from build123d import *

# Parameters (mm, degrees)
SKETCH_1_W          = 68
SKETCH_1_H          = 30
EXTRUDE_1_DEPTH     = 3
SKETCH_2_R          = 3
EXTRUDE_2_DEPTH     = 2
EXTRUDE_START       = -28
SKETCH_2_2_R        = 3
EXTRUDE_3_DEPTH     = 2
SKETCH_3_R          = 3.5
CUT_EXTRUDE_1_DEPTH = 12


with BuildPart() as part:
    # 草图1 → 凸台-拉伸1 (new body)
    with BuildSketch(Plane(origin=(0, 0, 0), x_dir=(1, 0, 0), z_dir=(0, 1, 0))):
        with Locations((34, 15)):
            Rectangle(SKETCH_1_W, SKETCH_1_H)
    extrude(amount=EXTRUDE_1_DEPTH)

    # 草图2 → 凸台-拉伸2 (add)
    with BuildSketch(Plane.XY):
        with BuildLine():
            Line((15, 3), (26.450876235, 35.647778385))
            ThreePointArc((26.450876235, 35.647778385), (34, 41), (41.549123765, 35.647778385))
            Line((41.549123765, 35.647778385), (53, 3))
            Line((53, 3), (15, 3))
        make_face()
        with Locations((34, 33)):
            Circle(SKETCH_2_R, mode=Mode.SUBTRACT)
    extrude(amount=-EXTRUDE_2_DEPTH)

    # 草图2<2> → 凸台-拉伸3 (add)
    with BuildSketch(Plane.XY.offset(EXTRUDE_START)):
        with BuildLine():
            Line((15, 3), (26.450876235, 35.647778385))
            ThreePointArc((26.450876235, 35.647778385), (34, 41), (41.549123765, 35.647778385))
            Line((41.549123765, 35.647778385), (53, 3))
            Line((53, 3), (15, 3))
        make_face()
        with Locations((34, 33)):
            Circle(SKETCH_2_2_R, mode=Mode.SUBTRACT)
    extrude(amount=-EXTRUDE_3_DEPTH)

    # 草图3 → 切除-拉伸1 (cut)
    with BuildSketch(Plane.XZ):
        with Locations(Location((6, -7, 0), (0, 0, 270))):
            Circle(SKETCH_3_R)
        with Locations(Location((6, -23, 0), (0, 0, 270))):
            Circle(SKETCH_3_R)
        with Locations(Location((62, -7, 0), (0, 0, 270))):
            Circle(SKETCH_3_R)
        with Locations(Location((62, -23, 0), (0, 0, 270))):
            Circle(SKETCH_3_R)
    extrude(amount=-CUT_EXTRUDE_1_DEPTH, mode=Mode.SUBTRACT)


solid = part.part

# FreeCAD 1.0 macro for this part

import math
import FreeCAD as App
import Part
import Sketcher
from FreeCAD import Vector


def add_polygon(sketch, points):
    """Adds a closed chain of lines whose ends are joined by coincident constraints."""
    first, n = sketch.GeometryCount, len(points)
    for a, b in zip(points, points[1:] + points[:1]):
        sketch.addGeometry(Part.LineSegment(App.Vector(*a, 0), App.Vector(*b, 0)), False)
    for i in range(n):
        sketch.addConstraint(Sketcher.Constraint("Coincident", first + i, 2, first + (i + 1) % n, 1))

doc = App.newDocument("Part")
body = doc.addObject("PartDesign::Body", "Body")

# Sketch on XZ plane
sketch1 = doc.addObject("Sketcher::SketchObject", "Sketch")
body.addObject(sketch1)
sketch1.AttachmentSupport = (doc.XZ_Plane, [""])
sketch1.MapMode = "FlatFace"
add_polygon(sketch1, [(0, -30), (0, 0), (68, 0), (68, -30)])  # lines 0-3
sketch1.addConstraint(Sketcher.Constraint("Vertical", 0))
sketch1.addConstraint(Sketcher.Constraint("Horizontal", 1))
sketch1.addConstraint(Sketcher.Constraint("Vertical", 2))
sketch1.addConstraint(Sketcher.Constraint("Horizontal", 3))
sketch1.addConstraint(Sketcher.Constraint("Coincident", 0, 2, -1, 1))
sketch1.addConstraint(Sketcher.Constraint("DistanceX", 1, 1, 1, 2, 68.0))
sketch1.addConstraint(Sketcher.Constraint("DistanceY", 0, 1, 0, 2, 30.0))
pad1 = doc.addObject("PartDesign::Pad", "Pad")
body.addObject(pad1)
pad1.Profile = sketch1
pad1.Length = 3
pad1.Reversed = True

# Sketch on XY plane
sketch2 = doc.addObject("Sketcher::SketchObject", "Sketch001")
body.addObject(sketch2)
sketch2.AttachmentSupport = (doc.XY_Plane, [""])
sketch2.MapMode = "FlatFace"
sketch2.addGeometry(Part.LineSegment(Vector(26.450876, 35.647778, 0), Vector(15, 3, 0)), False)
sketch2.addGeometry(Part.LineSegment(Vector(15, 3, 0), Vector(53, 3, 0)), False)
sketch2.addGeometry(Part.LineSegment(Vector(53, 3, 0), Vector(41.549124, 35.647778, 0)), False)
sketch2.addGeometry(Part.ArcOfCircle(Part.Circle(Vector(34, 33, 0), Vector(0, 0, 1), 8), math.radians(19.327801), math.radians(160.672199)), False)
sketch2.addGeometry(Part.Circle(Vector(34, 33, 0), Vector(0, 0, 1), 3), False)
sketch2.addConstraint(Sketcher.Constraint("Coincident", 0, 2, 1, 1))
sketch2.addConstraint(Sketcher.Constraint("Coincident", 1, 2, 2, 1))
sketch2.addConstraint(Sketcher.Constraint("Tangent", 2, 2, 3, 1))
sketch2.addConstraint(Sketcher.Constraint("Tangent", 3, 2, 0, 1))
sketch2.addConstraint(Sketcher.Constraint("Horizontal", 1))
sketch2.addConstraint(Sketcher.Constraint("Coincident", 4, 3, 3, 3))
sketch2.addConstraint(Sketcher.Constraint("Horizontal", 2, 2, 3, 2))
sketch2.addConstraint(Sketcher.Constraint("Diameter", 4, 6.0))
sketch2.addConstraint(Sketcher.Constraint("Radius", 3, 8.0))
sketch2.addConstraint(Sketcher.Constraint("DistanceX", 1, 1, 1, 2, 38.0))
sketch2.addConstraint(Sketcher.Constraint("DistanceX", -1, 1, 3, 3, 34.0))
sketch2.addConstraint(Sketcher.Constraint("DistanceY", -1, 1, 3, 3, 33.0))
sketch2.addConstraint(Sketcher.Constraint("DistanceY", -1, 1, 0, 2, 3.0))
pad2 = doc.addObject("PartDesign::Pad", "Pad001")
body.addObject(pad2)
pad2.Profile = sketch2
pad2.Length = 2
pad2.Reversed = True

# Sketch on XY plane
sketch3 = doc.addObject("Sketcher::SketchObject", "Sketch002")
body.addObject(sketch3)
sketch3.AttachmentSupport = (doc.XY_Plane, [""])
sketch3.MapMode = "FlatFace"
sketch3.AttachmentOffset = App.Placement(Vector(0, 0, -28), App.Rotation())
sketch3.addGeometry(Part.LineSegment(Vector(26.450876, 35.647778, 0), Vector(15, 3, 0)), False)
sketch3.addGeometry(Part.LineSegment(Vector(15, 3, 0), Vector(53, 3, 0)), False)
sketch3.addGeometry(Part.LineSegment(Vector(53, 3, 0), Vector(41.549124, 35.647778, 0)), False)
sketch3.addGeometry(Part.ArcOfCircle(Part.Circle(Vector(34, 33, 0), Vector(0, 0, 1), 8), math.radians(19.327801), math.radians(160.672199)), False)
sketch3.addGeometry(Part.Circle(Vector(34, 33, 0), Vector(0, 0, 1), 3), False)
sketch3.addConstraint(Sketcher.Constraint("Coincident", 0, 2, 1, 1))
sketch3.addConstraint(Sketcher.Constraint("Coincident", 1, 2, 2, 1))
sketch3.addConstraint(Sketcher.Constraint("Tangent", 2, 2, 3, 1))
sketch3.addConstraint(Sketcher.Constraint("Tangent", 3, 2, 0, 1))
sketch3.addConstraint(Sketcher.Constraint("Horizontal", 1))
sketch3.addConstraint(Sketcher.Constraint("Coincident", 4, 3, 3, 3))
sketch3.addConstraint(Sketcher.Constraint("Horizontal", 2, 2, 3, 2))
sketch3.addConstraint(Sketcher.Constraint("Diameter", 4, 6.0))
sketch3.addConstraint(Sketcher.Constraint("Radius", 3, 8.0))
sketch3.addConstraint(Sketcher.Constraint("DistanceX", 1, 1, 1, 2, 38.0))
sketch3.addConstraint(Sketcher.Constraint("DistanceX", -1, 1, 3, 3, 34.0))
sketch3.addConstraint(Sketcher.Constraint("DistanceY", -1, 1, 3, 3, 33.0))
sketch3.addConstraint(Sketcher.Constraint("DistanceY", -1, 1, 0, 2, 3.0))
pad3 = doc.addObject("PartDesign::Pad", "Pad002")
body.addObject(pad3)
pad3.Profile = sketch3
pad3.Length = 2
pad3.Reversed = True

# Sketch on XZ plane
sketch4 = doc.addObject("Sketcher::SketchObject", "Sketch003")
body.addObject(sketch4)
sketch4.AttachmentSupport = (doc.XZ_Plane, [""])
sketch4.MapMode = "FlatFace"
sketch4.addGeometry(Part.Circle(Vector(6, -7, 0), Vector(0, 0, 1), 3.5), False)
sketch4.addGeometry(Part.Circle(Vector(6, -23, 0), Vector(0, 0, 1), 3.5), False)
sketch4.addGeometry(Part.Circle(Vector(62, -7, 0), Vector(0, 0, 1), 3.5), False)
sketch4.addGeometry(Part.Circle(Vector(62, -23, 0), Vector(0, 0, 1), 3.5), False)
sketch4.addConstraint(Sketcher.Constraint("Equal", 0, 1))
sketch4.addConstraint(Sketcher.Constraint("Equal", 1, 2))
sketch4.addConstraint(Sketcher.Constraint("Equal", 2, 3))
sketch4.addConstraint(Sketcher.Constraint("Horizontal", 0, 3, 2, 3))
sketch4.addConstraint(Sketcher.Constraint("Horizontal", 1, 3, 3, 3))
sketch4.addConstraint(Sketcher.Constraint("Vertical", 0, 3, 1, 3))
sketch4.addConstraint(Sketcher.Constraint("Vertical", 2, 3, 3, 3))
sketch4.addConstraint(Sketcher.Constraint("Diameter", 0, 7.0))
sketch4.addConstraint(Sketcher.Constraint("DistanceX", -1, 1, 0, 3, 6.0))
sketch4.addConstraint(Sketcher.Constraint("DistanceY", 0, 3, -1, 1, 7.0))
sketch4.addConstraint(Sketcher.Constraint("DistanceY", 1, 3, -1, 1, 23.0))
sketch4.addConstraint(Sketcher.Constraint("DistanceX", -1, 1, 2, 3, 62.0))
pocket1 = doc.addObject("PartDesign::Pocket", "Pocket")
body.addObject(pocket1)
pocket1.Profile = sketch4
pocket1.Length = 12

doc.recompute()
